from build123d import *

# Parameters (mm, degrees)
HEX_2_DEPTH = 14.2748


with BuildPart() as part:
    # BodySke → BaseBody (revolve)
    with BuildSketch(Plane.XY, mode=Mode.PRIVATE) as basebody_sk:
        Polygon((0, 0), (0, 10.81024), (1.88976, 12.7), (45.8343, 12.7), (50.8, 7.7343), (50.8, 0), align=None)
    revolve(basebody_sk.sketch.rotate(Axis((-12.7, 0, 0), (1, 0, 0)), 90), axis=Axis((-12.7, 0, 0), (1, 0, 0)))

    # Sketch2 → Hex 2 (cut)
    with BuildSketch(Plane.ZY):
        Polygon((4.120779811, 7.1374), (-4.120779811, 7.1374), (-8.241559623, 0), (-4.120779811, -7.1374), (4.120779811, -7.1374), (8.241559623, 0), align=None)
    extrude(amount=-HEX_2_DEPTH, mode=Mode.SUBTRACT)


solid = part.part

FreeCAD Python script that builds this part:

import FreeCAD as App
import Part
import Sketcher

V = App.Vector
Q = App.Units.Quantity

doc = App.newDocument("Part")
body = doc.addObject("PartDesign::Body", "Body")

# Sketch on XY plane
sketch1 = doc.addObject("Sketcher::SketchObject", "Sketch")
body.addObject(sketch1)
sketch1.AttachmentSupport = (doc.XY_Plane, [""])
sketch1.MapMode = "FlatFace"
sketch1.addGeometry([
    Part.LineSegment(V(0, 10.81024, 0), V(0, 0, 0)),  # 0
    Part.LineSegment(V(0, 0, 0), V(50.8, 0, 0)),  # 1
    Part.LineSegment(V(50.8, 0, 0), V(50.8, 7.7343, 0)),  # 2
    Part.LineSegment(V(50.8, 7.7343, 0), V(45.8343, 12.7, 0)),  # 3
    Part.LineSegment(V(45.8343, 12.7, 0), V(1.88976, 12.7, 0)),  # 4
    Part.LineSegment(V(1.88976, 12.7, 0), V(0, 10.81024, 0)),  # 5
], False)
sketch1.addConstraint([
    Sketcher.Constraint("Coincident", 0, 2, 1, 1),
    Sketcher.Constraint("Coincident", 1, 2, 2, 1),
    Sketcher.Constraint("Coincident", 2, 2, 3, 1),
    Sketcher.Constraint("Coincident", 3, 2, 4, 1),
    Sketcher.Constraint("Coincident", 4, 2, 5, 1),
    Sketcher.Constraint("Coincident", 5, 2, 0, 1),
    Sketcher.Constraint("Vertical", 0),
    Sketcher.Constraint("Horizontal", 1),
    Sketcher.Constraint("Vertical", 2),
    Sketcher.Constraint("Horizontal", 4),
    Sketcher.Constraint("Coincident", 0, 2, -1, 1),
    Sketcher.Constraint("Perpendicular", 3, 5),
    Sketcher.Constraint("DistanceX", 1, 1, 1, 2, Q("2 in")),
    Sketcher.Constraint("Angle", 3, Q("135 deg")),
    Sketcher.Constraint("DistanceY", -1, 1, 3, 2, Q("0.5 in")),
    Sketcher.Constraint("DistanceX", 4, 2, 4, 1, Q("1.7301 in")),
    Sketcher.Constraint("DistanceY", 0, 2, 0, 1, Q("0.4256 in")),
])
revolution = doc.addObject("PartDesign::Revolution", "Revolution")
body.addObject(revolution)
revolution.Profile = sketch1
revolution.ReferenceAxis = (sketch1, ["H_Axis"])
revolution.Angle = 360

# Sketch on YZ plane
sketch2 = doc.addObject("Sketcher::SketchObject", "Sketch001")
body.addObject(sketch2)
sketch2.AttachmentSupport = (doc.YZ_Plane, [""])
sketch2.MapMode = "FlatFace"
sketch2.addGeometry([
    Part.LineSegment(V(7.1374, 4.12078, 0), V(7.1374, -4.12078, 0)),  # 0
    Part.LineSegment(V(7.1374, -4.12078, 0), V(0, -8.24156, 0)),  # 1
    Part.LineSegment(V(0, -8.24156, 0), V(-7.1374, -4.12078, 0)),  # 2
    Part.LineSegment(V(-7.1374, -4.12078, 0), V(-7.1374, 4.12078, 0)),  # 3
    Part.LineSegment(V(-7.1374, 4.12078, 0), V(0, 8.24156, 0)),  # 4
    Part.LineSegment(V(0, 8.24156, 0), V(7.1374, 4.12078, 0)),  # 5
], False)
sketch2.addConstraint([
    Sketcher.Constraint("Coincident", 0, 2, 1, 1),
    Sketcher.Constraint("Coincident", 1, 2, 2, 1),
    Sketcher.Constraint("Coincident", 2, 2, 3, 1),
    Sketcher.Constraint("Coincident", 3, 2, 4, 1),
    Sketcher.Constraint("Coincident", 4, 2, 5, 1),
    Sketcher.Constraint("Coincident", 5, 2, 0, 1),
    Sketcher.Constraint("Vertical", 0),
    Sketcher.Constraint("Vertical", 3),
    Sketcher.Constraint("Symmetric", 0, 2, 3, 2, -1, 1),
    Sketcher.Constraint("Symmetric", 1, 2, 4, 2, -1, 1),
    Sketcher.Constraint("PointOnObject", 1, 2, -2),
    Sketcher.Constraint("Parallel", 2, 5),
    Sketcher.Constraint("Horizontal", 0, 2, 2, 2),
    Sketcher.Constraint("Angle", 1, Q("-150 deg")),
    Sketcher.Constraint("DistanceX", -1, 1, 0, 2, Q("0.281 in")),
    Sketcher.Constraint("DistanceY", 0, 2, 0, 1, Q("8.24156 mm")),
])
pocket1 = doc.addObject("PartDesign::Pocket", "Pocket")
body.addObject(pocket1)
pocket1.Profile = sketch2
pocket1.Length = Q("0.562 in")
pocket1.Reversed = True

doc.recompute()
